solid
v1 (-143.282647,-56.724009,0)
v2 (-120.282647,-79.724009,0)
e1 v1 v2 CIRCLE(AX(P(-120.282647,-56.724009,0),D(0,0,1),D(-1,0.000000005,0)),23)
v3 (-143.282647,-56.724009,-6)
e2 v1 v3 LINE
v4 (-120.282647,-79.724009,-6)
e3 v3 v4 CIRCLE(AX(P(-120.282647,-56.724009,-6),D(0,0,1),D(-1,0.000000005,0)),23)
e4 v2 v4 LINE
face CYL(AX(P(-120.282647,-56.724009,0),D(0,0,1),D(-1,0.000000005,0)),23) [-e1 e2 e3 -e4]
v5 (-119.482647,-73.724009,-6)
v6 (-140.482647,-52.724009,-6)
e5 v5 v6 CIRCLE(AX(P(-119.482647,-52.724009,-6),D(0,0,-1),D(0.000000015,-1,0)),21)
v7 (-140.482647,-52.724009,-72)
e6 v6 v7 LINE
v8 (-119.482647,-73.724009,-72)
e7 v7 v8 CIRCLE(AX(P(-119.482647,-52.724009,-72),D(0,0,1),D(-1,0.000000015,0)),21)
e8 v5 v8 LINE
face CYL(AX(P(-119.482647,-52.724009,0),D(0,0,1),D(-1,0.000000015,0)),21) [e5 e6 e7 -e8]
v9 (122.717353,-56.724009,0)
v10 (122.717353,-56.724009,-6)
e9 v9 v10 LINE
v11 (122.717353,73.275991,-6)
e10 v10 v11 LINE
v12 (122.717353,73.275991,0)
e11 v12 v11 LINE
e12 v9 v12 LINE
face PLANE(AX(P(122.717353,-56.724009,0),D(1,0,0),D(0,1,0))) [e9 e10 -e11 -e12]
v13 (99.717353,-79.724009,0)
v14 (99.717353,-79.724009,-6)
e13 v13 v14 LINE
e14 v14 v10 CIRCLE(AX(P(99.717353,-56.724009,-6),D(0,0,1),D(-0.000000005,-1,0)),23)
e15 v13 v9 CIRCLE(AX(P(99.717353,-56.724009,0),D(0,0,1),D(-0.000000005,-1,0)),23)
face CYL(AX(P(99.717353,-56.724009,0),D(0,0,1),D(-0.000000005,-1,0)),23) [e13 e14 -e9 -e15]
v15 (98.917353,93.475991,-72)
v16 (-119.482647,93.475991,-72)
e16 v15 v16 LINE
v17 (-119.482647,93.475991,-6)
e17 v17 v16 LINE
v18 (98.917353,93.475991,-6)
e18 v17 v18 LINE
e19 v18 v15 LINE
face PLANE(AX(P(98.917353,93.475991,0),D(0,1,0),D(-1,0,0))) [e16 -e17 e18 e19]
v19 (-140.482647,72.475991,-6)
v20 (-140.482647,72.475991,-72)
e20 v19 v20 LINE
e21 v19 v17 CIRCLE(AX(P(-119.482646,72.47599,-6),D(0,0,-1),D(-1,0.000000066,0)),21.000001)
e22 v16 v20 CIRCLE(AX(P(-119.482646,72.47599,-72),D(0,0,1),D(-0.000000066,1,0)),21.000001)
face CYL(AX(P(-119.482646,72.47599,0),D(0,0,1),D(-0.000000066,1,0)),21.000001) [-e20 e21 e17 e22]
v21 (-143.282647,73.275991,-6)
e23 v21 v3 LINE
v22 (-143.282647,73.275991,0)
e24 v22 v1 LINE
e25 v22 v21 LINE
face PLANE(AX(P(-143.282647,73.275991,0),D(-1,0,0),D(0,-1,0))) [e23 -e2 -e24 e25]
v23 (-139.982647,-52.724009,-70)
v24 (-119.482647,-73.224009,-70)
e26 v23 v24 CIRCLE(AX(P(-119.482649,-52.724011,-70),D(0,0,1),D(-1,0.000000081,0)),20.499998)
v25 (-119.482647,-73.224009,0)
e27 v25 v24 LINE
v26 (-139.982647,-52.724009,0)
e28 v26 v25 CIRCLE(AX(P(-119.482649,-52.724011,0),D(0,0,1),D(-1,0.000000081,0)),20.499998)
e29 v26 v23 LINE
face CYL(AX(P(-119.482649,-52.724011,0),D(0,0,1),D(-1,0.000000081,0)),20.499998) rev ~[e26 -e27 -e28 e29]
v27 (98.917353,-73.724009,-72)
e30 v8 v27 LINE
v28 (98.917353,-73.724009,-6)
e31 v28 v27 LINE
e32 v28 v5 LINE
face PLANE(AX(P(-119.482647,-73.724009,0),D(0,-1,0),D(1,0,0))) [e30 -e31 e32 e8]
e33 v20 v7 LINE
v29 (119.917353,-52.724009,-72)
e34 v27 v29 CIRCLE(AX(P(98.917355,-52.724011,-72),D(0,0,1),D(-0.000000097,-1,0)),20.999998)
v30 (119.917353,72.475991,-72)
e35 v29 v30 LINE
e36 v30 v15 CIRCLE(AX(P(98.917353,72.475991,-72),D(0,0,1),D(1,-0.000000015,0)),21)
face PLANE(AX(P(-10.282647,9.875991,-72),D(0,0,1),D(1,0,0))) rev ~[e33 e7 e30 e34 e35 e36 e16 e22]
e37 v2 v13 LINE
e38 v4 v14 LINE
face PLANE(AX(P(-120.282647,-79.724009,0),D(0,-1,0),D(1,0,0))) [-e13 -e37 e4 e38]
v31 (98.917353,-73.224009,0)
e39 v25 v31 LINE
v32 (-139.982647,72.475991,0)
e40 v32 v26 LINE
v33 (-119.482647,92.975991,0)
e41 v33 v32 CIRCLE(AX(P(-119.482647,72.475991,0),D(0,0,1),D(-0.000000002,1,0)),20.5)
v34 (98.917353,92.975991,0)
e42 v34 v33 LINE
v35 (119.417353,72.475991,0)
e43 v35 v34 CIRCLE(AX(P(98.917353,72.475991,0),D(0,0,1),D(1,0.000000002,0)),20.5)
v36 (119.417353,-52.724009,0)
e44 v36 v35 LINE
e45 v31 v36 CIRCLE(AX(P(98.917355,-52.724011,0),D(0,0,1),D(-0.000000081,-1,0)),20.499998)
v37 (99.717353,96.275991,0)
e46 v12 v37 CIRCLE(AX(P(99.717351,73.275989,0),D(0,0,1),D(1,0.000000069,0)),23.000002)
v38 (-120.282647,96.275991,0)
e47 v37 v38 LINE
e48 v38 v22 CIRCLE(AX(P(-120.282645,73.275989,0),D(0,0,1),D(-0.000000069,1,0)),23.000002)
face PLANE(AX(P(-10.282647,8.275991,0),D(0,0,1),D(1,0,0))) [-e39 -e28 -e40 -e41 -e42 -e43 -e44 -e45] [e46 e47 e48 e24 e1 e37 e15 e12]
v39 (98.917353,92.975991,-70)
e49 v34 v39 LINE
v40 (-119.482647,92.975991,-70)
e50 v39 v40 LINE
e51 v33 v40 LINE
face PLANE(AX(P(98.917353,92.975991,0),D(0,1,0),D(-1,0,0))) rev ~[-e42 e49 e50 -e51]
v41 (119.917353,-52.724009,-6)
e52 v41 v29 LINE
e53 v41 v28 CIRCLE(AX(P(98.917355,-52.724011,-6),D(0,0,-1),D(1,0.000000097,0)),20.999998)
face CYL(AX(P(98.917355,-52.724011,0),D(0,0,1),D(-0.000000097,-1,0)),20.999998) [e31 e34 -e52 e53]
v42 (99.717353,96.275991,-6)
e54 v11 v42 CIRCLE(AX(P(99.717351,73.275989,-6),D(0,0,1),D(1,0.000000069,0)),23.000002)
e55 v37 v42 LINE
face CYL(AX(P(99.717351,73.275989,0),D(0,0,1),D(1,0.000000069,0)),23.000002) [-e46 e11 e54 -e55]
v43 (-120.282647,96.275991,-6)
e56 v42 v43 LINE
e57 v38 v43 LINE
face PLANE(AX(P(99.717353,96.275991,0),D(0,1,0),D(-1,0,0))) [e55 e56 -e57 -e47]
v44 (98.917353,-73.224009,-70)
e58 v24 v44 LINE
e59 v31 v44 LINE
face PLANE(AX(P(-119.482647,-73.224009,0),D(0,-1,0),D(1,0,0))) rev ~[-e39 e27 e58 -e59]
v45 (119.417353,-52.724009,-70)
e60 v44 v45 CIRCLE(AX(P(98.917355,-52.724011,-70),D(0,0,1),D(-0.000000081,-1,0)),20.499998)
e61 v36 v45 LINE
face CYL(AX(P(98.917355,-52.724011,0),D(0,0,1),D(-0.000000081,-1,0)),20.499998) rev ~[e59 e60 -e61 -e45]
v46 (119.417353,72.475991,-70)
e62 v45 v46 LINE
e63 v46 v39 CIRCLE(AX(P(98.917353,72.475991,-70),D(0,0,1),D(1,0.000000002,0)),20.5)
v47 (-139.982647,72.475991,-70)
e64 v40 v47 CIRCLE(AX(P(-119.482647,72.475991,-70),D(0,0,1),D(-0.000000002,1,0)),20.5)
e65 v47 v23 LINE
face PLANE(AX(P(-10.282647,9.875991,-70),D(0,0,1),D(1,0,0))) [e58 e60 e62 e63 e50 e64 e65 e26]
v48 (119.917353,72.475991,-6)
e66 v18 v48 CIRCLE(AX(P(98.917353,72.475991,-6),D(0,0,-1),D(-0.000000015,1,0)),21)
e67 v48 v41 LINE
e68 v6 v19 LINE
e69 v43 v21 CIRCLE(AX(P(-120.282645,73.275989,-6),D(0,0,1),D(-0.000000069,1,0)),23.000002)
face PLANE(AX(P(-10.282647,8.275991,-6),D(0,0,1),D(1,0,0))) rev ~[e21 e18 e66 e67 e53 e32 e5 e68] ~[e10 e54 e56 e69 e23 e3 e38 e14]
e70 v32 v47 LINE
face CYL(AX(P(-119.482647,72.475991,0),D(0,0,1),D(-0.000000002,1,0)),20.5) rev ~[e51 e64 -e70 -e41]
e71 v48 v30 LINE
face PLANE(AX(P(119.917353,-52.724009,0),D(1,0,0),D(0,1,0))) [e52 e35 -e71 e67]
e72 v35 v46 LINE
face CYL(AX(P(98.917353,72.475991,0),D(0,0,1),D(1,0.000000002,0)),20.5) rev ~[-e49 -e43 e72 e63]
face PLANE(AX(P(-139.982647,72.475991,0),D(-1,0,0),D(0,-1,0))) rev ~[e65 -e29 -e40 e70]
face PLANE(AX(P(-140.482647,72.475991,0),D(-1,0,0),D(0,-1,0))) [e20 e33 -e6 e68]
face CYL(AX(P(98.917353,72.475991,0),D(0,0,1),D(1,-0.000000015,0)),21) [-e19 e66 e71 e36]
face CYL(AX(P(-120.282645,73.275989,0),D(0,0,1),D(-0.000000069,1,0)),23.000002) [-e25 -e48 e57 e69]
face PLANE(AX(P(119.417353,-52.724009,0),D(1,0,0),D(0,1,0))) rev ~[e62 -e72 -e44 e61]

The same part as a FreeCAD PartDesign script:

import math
import FreeCAD as App
import Part
import Sketcher

doc = App.newDocument("Part")
body = doc.addObject("PartDesign::Body", "Body")

# Sketch on XY plane
sketch1 = body.newObject("Sketcher::SketchObject", "Sketch")
sketch1.AttachmentSupport = (doc.getObject("XY_Plane"), [""])
sketch1.MapMode = "FlatFace"
sketch1.addGeometry([
    Part.LineSegment(App.Vector(99, 93, 0), App.Vector(-119, 93, 0)),  # 0
    Part.ArcOfCircle(Part.Circle(App.Vector(-119, 72, 0), App.Vector(0, 0, 1), 21), math.radians(90), math.radians(180)),  # 1
    Part.LineSegment(App.Vector(-140, 72, 0), App.Vector(-140, -53, 0)),  # 2
    Part.ArcOfCircle(Part.Circle(App.Vector(-119, -53, 0), App.Vector(0, 0, 1), 21), math.radians(180), math.radians(270)),  # 3
    Part.LineSegment(App.Vector(-119, -74, 0), App.Vector(99, -74, 0)),  # 4
    Part.ArcOfCircle(Part.Circle(App.Vector(99, -53, 0), App.Vector(0, 0, 1), 21), math.radians(-90), math.radians(0)),  # 5
    Part.LineSegment(App.Vector(120, -53, 0), App.Vector(120, 72, 0)),  # 6
    Part.ArcOfCircle(Part.Circle(App.Vector(99, 72, 0), App.Vector(0, 0, 1), 21), math.radians(0), math.radians(90)),  # 7
], False)
sketch1.addConstraint([
    Sketcher.Constraint("Tangent", 0, 2, 1, 1),
    Sketcher.Constraint("Tangent", 1, 2, 2, 1),
    Sketcher.Constraint("Tangent", 2, 2, 3, 1),
    Sketcher.Constraint("Tangent", 3, 2, 4, 1),
    Sketcher.Constraint("Tangent", 4, 2, 5, 1),
    Sketcher.Constraint("Tangent", 5, 2, 6, 1),
    Sketcher.Constraint("Tangent", 6, 2, 7, 1),
    Sketcher.Constraint("Tangent", 7, 2, 0, 1),
    Sketcher.Constraint("Horizontal", 0),
    Sketcher.Constraint("Vertical", 2),
    Sketcher.Constraint("Horizontal", 4),
    Sketcher.Constraint("Vertical", 6),
    Sketcher.Constraint("Equal", 1, 3),
    Sketcher.Constraint("Equal", 3, 5),
    Sketcher.Constraint("Equal", 5, 7),
    Sketcher.Constraint("Radius", 1, 21.000001),
    Sketcher.Constraint("DistanceX", 0, 2, 0, 1, 218.4),
    Sketcher.Constraint("DistanceY", 2, 2, 2, 1, 125.2),
    Sketcher.Constraint("DistanceY", -1, 1, 1, 3, 72.47599),
    Sketcher.Constraint("DistanceX", 1, 3, -1, 1, 119.482646),
])
pad1 = body.newObject("PartDesign::Pad", "Pad")
pad1.Profile = sketch1
pad1.Length = 72
pad1.Reversed = True

# Sketch on XY plane
sketch2 = body.newObject("Sketcher::SketchObject", "Sketch001")
sketch2.AttachmentSupport = (doc.getObject("XY_Plane"), [""])
sketch2.MapMode = "FlatFace"
sketch2.addGeometry([
    Part.LineSegment(App.Vector(100, 96, 0), App.Vector(-120, 96, 0)),  # 0
    Part.ArcOfCircle(Part.Circle(App.Vector(-120, 73, 0), App.Vector(0, 0, 1), 23), math.radians(90), math.radians(180)),  # 1
    Part.LineSegment(App.Vector(-143, 73, 0), App.Vector(-143, -57, 0)),  # 2
    Part.ArcOfCircle(Part.Circle(App.Vector(-120, -57, 0), App.Vector(0, 0, 1), 23), math.radians(180), math.radians(270)),  # 3
    Part.LineSegment(App.Vector(-120, -80, 0), App.Vector(100, -80, 0)),  # 4
    Part.ArcOfCircle(Part.Circle(App.Vector(100, -57, 0), App.Vector(0, 0, 1), 23), math.radians(-90), math.radians(0)),  # 5
    Part.LineSegment(App.Vector(123, -57, 0), App.Vector(123, 73, 0)),  # 6
    Part.ArcOfCircle(Part.Circle(App.Vector(100, 73, 0), App.Vector(0, 0, 1), 23), math.radians(0), math.radians(90)),  # 7
    Part.LineSegment(App.Vector(-140, -53, 0), App.Vector(-140, 72, 0)),  # 8
    Part.ArcOfCircle(Part.Circle(App.Vector(-119, 72, 0), App.Vector(0, 0, 1), 21), math.radians(90), math.radians(180)),  # 9
    Part.LineSegment(App.Vector(-119, 93, 0), App.Vector(99, 93, 0)),  # 10
    Part.ArcOfCircle(Part.Circle(App.Vector(99, 72, 0), App.Vector(0, 0, 1), 21), math.radians(0), math.radians(90)),  # 11
    Part.LineSegment(App.Vector(120, 72, 0), App.Vector(120, -53, 0)),  # 12
    Part.ArcOfCircle(Part.Circle(App.Vector(99, -53, 0), App.Vector(0, 0, 1), 21), math.radians(-90), math.radians(0)),  # 13
    Part.LineSegment(App.Vector(99, -74, 0), App.Vector(-119, -74, 0)),  # 14
    Part.ArcOfCircle(Part.Circle(App.Vector(-119, -53, 0), App.Vector(0, 0, 1), 21), math.radians(180), math.radians(270)),  # 15
], False)
sketch2.addConstraint([
    Sketcher.Constraint("Tangent", 0, 2, 1, 1),
    Sketcher.Constraint("Tangent", 1, 2, 2, 1),
    Sketcher.Constraint("Tangent", 2, 2, 3, 1),
    Sketcher.Constraint("Tangent", 3, 2, 4, 1),
    Sketcher.Constraint("Tangent", 4, 2, 5, 1),
    Sketcher.Constraint("Tangent", 5, 2, 6, 1),
    Sketcher.Constraint("Tangent", 6, 2, 7, 1),
    Sketcher.Constraint("Tangent", 7, 2, 0, 1),
    Sketcher.Constraint("Tangent", 8, 2, 9, 2),
    Sketcher.Constraint("Tangent", 9, 1, 10, 1),
    Sketcher.Constraint("Tangent", 10, 2, 11, 2),
    Sketcher.Constraint("Tangent", 11, 1, 12, 1),
    Sketcher.Constraint("Tangent", 12, 2, 13, 2),
    Sketcher.Constraint("Tangent", 13, 1, 14, 1),
    Sketcher.Constraint("Tangent", 14, 2, 15, 2),
    Sketcher.Constraint("Tangent", 15, 1, 8, 1),
    Sketcher.Constraint("Horizontal", 0),
    Sketcher.Constraint("Vertical", 2),
    Sketcher.Constraint("Horizontal", 4),
    Sketcher.Constraint("Vertical", 6),
    Sketcher.Constraint("Vertical", 8),
    Sketcher.Constraint("Horizontal", 10),
    Sketcher.Constraint("Vertical", 12),
    Sketcher.Constraint("Horizontal", 14),
    Sketcher.Constraint("Equal", 1, 3),
    Sketcher.Constraint("Equal", 3, 5),
    Sketcher.Constraint("Equal", 5, 7),
    Sketcher.Constraint("Equal", 9, 11),
    Sketcher.Constraint("Equal", 11, 13),
    Sketcher.Constraint("Equal", 13, 15),
    Sketcher.Constraint("Radius", 1, 23.000002),
    Sketcher.Constraint("Radius", 9, 21.000001),
    Sketcher.Constraint("DistanceX", 0, 2, 0, 1, 220.0),
    Sketcher.Constraint("DistanceY", 2, 2, 2, 1, 130.0),
    Sketcher.Constraint("DistanceX", 10, 1, 10, 2, 218.4),
    Sketcher.Constraint("DistanceY", 8, 1, 8, 2, 125.2),
    Sketcher.Constraint("DistanceY", 5, 3, 13, 3, 3.999998),
    Sketcher.Constraint("DistanceX", 1, 3, 9, 3, 0.8),
    Sketcher.Constraint("DistanceY", -1, 1, 1, 3, 73.275989),
    Sketcher.Constraint("DistanceX", -1, 1, 7, 3, 99.717351),
])
pad2 = body.newObject("PartDesign::Pad", "Pad001")
pad2.Profile = sketch2
pad2.Length = 6
pad2.Reversed = True

# Sketch on XY plane
sketch3 = body.newObject("Sketcher::SketchObject", "Sketch002")
sketch3.AttachmentSupport = (doc.getObject("XY_Plane"), [""])
sketch3.MapMode = "FlatFace"
sketch3.addGeometry([
    Part.LineSegment(App.Vector(99, 93, 0), App.Vector(-119, 93, 0)),  # 0
    Part.ArcOfCircle(Part.Circle(App.Vector(-119, 72, 0), App.Vector(0, 0, 1), 21), math.radians(90), math.radians(180)),  # 1
    Part.LineSegment(App.Vector(-140, 72, 0), App.Vector(-140, -53, 0)),  # 2
    Part.ArcOfCircle(Part.Circle(App.Vector(-119, -53, 0), App.Vector(0, 0, 1), 20), math.radians(180), math.radians(270)),  # 3
    Part.LineSegment(App.Vector(-119, -73, 0), App.Vector(99, -73, 0)),  # 4
    Part.ArcOfCircle(Part.Circle(App.Vector(99, -53, 0), App.Vector(0, 0, 1), 20), math.radians(-90), math.radians(0)),  # 5
    Part.LineSegment(App.Vector(119, -53, 0), App.Vector(119, 72, 0)),  # 6
    Part.ArcOfCircle(Part.Circle(App.Vector(99, 72, 0), App.Vector(0, 0, 1), 21), math.radians(0), math.radians(90)),  # 7
], False)
sketch3.addConstraint([
    Sketcher.Constraint("Tangent", 0, 2, 1, 1),
    Sketcher.Constraint("Tangent", 1, 2, 2, 1),
    Sketcher.Constraint("Tangent", 2, 2, 3, 1),
    Sketcher.Constraint("Tangent", 3, 2, 4, 1),
    Sketcher.Constraint("Tangent", 4, 2, 5, 1),
    Sketcher.Constraint("Tangent", 5, 2, 6, 1),
    Sketcher.Constraint("Tangent", 6, 2, 7, 1),
    Sketcher.Constraint("Tangent", 7, 2, 0, 1),
    Sketcher.Constraint("Horizontal", 0),
    Sketcher.Constraint("Vertical", 2),
    Sketcher.Constraint("Horizontal", 4),
    Sketcher.Constraint("Vertical", 6),
    Sketcher.Constraint("Equal", 1, 3),
    Sketcher.Constraint("Equal", 3, 5),
    Sketcher.Constraint("Equal", 5, 7),
    Sketcher.Constraint("Radius", 1, 20.5),
    Sketcher.Constraint("DistanceX", 0, 2, 0, 1, 218.4),
    Sketcher.Constraint("DistanceY", 2, 2, 2, 1, 125.2),
    Sketcher.Constraint("DistanceY", -1, 1, 1, 3, 72.475991),
    Sketcher.Constraint("DistanceX", 3, 3, -1, 1, 119.482649),
])
pocket1 = body.newObject("PartDesign::Pocket", "Pocket")
pocket1.Profile = sketch3
pocket1.Length = 70

doc.recompute()
